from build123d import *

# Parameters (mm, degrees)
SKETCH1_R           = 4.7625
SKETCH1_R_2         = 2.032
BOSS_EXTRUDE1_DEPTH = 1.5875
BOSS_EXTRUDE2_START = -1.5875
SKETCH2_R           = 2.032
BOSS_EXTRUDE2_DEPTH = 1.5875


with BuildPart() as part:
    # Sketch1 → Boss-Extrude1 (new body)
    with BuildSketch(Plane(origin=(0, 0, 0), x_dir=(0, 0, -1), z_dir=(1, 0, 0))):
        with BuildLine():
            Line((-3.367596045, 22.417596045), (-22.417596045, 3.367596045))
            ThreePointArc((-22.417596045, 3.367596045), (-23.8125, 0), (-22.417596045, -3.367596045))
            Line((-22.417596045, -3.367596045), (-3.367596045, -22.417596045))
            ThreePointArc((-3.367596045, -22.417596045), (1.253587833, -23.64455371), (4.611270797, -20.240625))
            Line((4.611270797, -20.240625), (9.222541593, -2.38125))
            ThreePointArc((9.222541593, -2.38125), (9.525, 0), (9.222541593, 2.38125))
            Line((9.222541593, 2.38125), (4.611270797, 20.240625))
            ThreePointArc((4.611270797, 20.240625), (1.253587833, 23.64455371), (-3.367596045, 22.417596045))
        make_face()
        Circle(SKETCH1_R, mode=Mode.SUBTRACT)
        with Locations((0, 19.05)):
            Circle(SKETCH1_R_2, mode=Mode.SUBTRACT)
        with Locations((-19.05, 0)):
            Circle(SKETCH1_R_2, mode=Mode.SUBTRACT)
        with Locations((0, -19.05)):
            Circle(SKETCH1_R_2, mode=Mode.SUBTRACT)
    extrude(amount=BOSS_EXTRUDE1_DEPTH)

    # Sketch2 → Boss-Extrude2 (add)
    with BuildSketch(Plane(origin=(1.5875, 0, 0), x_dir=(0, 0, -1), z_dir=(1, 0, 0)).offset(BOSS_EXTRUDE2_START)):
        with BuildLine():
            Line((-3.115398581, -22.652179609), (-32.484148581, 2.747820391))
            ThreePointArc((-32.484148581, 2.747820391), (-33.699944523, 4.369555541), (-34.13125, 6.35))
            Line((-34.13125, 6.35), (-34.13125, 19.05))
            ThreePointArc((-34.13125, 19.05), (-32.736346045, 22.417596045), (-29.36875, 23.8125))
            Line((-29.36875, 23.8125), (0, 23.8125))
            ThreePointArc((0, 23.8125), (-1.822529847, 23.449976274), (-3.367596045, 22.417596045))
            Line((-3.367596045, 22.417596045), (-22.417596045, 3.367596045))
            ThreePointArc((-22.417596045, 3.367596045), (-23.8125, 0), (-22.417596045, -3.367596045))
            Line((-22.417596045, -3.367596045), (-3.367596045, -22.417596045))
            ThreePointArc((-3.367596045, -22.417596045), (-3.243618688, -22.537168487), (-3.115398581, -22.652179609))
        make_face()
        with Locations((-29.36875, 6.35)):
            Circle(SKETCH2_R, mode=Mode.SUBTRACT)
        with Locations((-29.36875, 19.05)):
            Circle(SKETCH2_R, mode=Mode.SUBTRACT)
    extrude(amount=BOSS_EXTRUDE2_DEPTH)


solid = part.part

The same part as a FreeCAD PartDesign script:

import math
import FreeCAD as App
import Part
import Sketcher

V = App.Vector
Q = App.Units.Quantity

doc = App.newDocument("Part")
body = doc.addObject("PartDesign::Body", "Body")

# Sketch on YZ plane
sketch1 = body.newObject("Sketcher::SketchObject", "Sketch")
sketch1.AttachmentSupport = (doc.getObject("YZ_Plane"), [""])
sketch1.MapMode = "FlatFace"
sketch1.addGeometry([
    Part.LineSegment(V(22.417596, 3.367596, 0), V(3.367596, 22.417596, 0)),  # 0
    Part.ArcOfCircle(Part.Circle(V(0, 19.05, 0), V(0, 0, 1), 4.7625), math.radians(45), math.radians(135)),  # 1
    Part.LineSegment(V(-3.367596, 22.417596, 0), V(-22.417596, 3.367596, 0)),  # 2
    Part.ArcOfCircle(Part.Circle(V(-19.05, 0, 0), V(0, 0, 1), 4.7625), math.radians(135), math.radians(255.522488)),  # 3
    Part.LineSegment(V(-20.240625, -4.611271, 0), V(-2.38125, -9.222542, 0)),  # 4
    Part.ArcOfCircle(Part.Circle(V(0, 0, 0), V(0, 0, 1), 9.525), math.radians(-104.477512), math.radians(-75.522488)),  # 5
    Part.LineSegment(V(2.38125, -9.222542, 0), V(20.240625, -4.611271, 0)),  # 6
    Part.ArcOfCircle(Part.Circle(V(19.05, 0, 0), V(0, 0, 1), 4.7625), math.radians(-75.522488), math.radians(45)),  # 7
    Part.Circle(V(-19.05, 0, 0), V(0, 0, 1), 2.032),  # 8
    Part.Circle(V(0, 19.05, 0), V(0, 0, 1), 2.032),  # 9
    Part.Circle(V(0, 0, 0), V(0, 0, 1), 4.7625),  # 10
    Part.Circle(V(19.05, 0, 0), V(0, 0, 1), 2.032),  # 11
], False)
sketch1.addConstraint([
    Sketcher.Constraint("Tangent", 0, 2, 1, 1),
    Sketcher.Constraint("Tangent", 1, 2, 2, 1),
    Sketcher.Constraint("Tangent", 2, 2, 3, 1),
    Sketcher.Constraint("Tangent", 3, 2, 4, 1),
    Sketcher.Constraint("Tangent", 4, 2, 5, 1),
    Sketcher.Constraint("Tangent", 5, 2, 6, 1),
    Sketcher.Constraint("Tangent", 6, 2, 7, 1),
    Sketcher.Constraint("Tangent", 7, 2, 0, 1),
    Sketcher.Constraint("Coincident", 5, 3, -1, 1),
    Sketcher.Constraint("Coincident", 10, 3, -1, 1),
    Sketcher.Constraint("Coincident", 8, 3, 3, 3),
    Sketcher.Constraint("Coincident", 9, 3, 1, 3),
    Sketcher.Constraint("Coincident", 11, 3, 7, 3),
    Sketcher.Constraint("Equal", 1, 3),
    Sketcher.Constraint("Equal", 3, 7),
    Sketcher.Constraint("Equal", 8, 9),
    Sketcher.Constraint("Equal", 7, 10),
    Sketcher.Constraint("Equal", 9, 11),
    Sketcher.Constraint("Symmetric", 3, 3, 7, 3, -1, 1),
    Sketcher.Constraint("Symmetric", 0, 2, 1, 2, -2),
    Sketcher.Constraint("Perpendicular", 0, 2),
    Sketcher.Constraint("Diameter", 8, Q("0.16 in")),
    Sketcher.Constraint("Diameter", 10, Q("0.375 in")),
    Sketcher.Constraint("Radius", 5, Q("0.375 in")),
    Sketcher.Constraint("DistanceX", 3, 3, 7, 3, Q("1.5 in")),
])
pad1 = body.newObject("PartDesign::Pad", "Pad")
pad1.Profile = sketch1
pad1.Length = Q("0.0625 in")

# Sketch on YZ plane
sketch2 = body.newObject("Sketcher::SketchObject", "Sketch001")
sketch2.AttachmentSupport = (doc.getObject("YZ_Plane"), [""])
sketch2.MapMode = "FlatFace"
sketch2.addGeometry([
    Part.LineSegment(V(2.74782, 32.484149, 0), V(-22.65218, 3.115399, 0)),  # 0
    Part.ArcOfCircle(Part.Circle(V(-19.05, 0, 0), V(0, 0, 1), 4.7625), math.radians(135), math.radians(139.144624)),  # 1
    Part.LineSegment(V(-22.417596, 3.367596, 0), V(-3.367596, 22.417596, 0)),  # 2
    Part.ArcOfCircle(Part.Circle(V(0, 19.05, 0), V(0, 0, 1), 4.7625), math.radians(45), math.radians(135)),  # 3
    Part.LineSegment(V(3.367596, 22.417596, 0), V(22.417596, 3.367596, 0)),  # 4
    Part.ArcOfCircle(Part.Circle(V(19.05, 0, 0), V(0, 0, 1), 4.7625), math.radians(0), math.radians(45)),  # 5
    Part.LineSegment(V(23.8125, 0, 0), V(23.8125, 29.36875, 0)),  # 6
    Part.ArcOfCircle(Part.Circle(V(19.05, 29.36875, 0), V(0, 0, 1), 4.7625), math.radians(0), math.radians(90)),  # 7
    Part.LineSegment(V(19.05, 34.13125, 0), V(6.35, 34.13125, 0)),  # 8
    Part.ArcOfCircle(Part.Circle(V(6.35, 29.36875, 0), V(0, 0, 1), 4.7625), math.radians(90), math.radians(139.144624)),  # 9
    Part.Circle(V(6.35, 29.36875, 0), V(0, 0, 1), 2.032),  # 10
    Part.Circle(V(19.05, 29.36875, 0), V(0, 0, 1), 2.032),  # 11
], False)
sketch2.addConstraint([
    Sketcher.Constraint("Tangent", 0, 2, 1, 2),
    Sketcher.Constraint("Tangent", 1, 1, 2, 1),
    Sketcher.Constraint("Tangent", 2, 2, 3, 2),
    Sketcher.Constraint("Tangent", 3, 1, 4, 1),
    Sketcher.Constraint("Tangent", 4, 2, 5, 2),
    Sketcher.Constraint("Tangent", 5, 1, 6, 1),
    Sketcher.Constraint("Tangent", 6, 2, 7, 1),
    Sketcher.Constraint("Tangent", 7, 2, 8, 1),
    Sketcher.Constraint("Tangent", 8, 2, 9, 1),
    Sketcher.Constraint("Tangent", 9, 2, 0, 1),
    Sketcher.Constraint("Vertical", 6),
    Sketcher.Constraint("Horizontal", 8),
    Sketcher.Constraint("Coincident", 10, 3, 9, 3),
    Sketcher.Constraint("Coincident", 11, 3, 7, 3),
    Sketcher.Constraint("Equal", 1, 3),
    Sketcher.Constraint("Equal", 3, 5),
    Sketcher.Constraint("Equal", 5, 7),
    Sketcher.Constraint("Equal", 7, 9),
    Sketcher.Constraint("Equal", 10, 11),
    Sketcher.Constraint("Symmetric", 1, 3, 5, 3, -1, 1),
    Sketcher.Constraint("Symmetric", 2, 2, 3, 1, -2),
    Sketcher.Constraint("Perpendicular", 2, 4),
    Sketcher.Constraint("Diameter", 10, Q("0.16 in")),
    Sketcher.Constraint("DistanceX", 8, 2, 8, 1, Q("0.5 in")),
    Sketcher.Constraint("Radius", 1, Q("0.1875 in")),
    Sketcher.Constraint("DistanceX", 1, 3, 9, 3, Q("1 in")),
    Sketcher.Constraint("DistanceY", 6, 1, 6, 2, Q("1.15625 in")),
])
pad2 = body.newObject("PartDesign::Pad", "Pad001")
pad2.Profile = sketch2
pad2.Length = Q("0.0625 in")

doc.recompute()
